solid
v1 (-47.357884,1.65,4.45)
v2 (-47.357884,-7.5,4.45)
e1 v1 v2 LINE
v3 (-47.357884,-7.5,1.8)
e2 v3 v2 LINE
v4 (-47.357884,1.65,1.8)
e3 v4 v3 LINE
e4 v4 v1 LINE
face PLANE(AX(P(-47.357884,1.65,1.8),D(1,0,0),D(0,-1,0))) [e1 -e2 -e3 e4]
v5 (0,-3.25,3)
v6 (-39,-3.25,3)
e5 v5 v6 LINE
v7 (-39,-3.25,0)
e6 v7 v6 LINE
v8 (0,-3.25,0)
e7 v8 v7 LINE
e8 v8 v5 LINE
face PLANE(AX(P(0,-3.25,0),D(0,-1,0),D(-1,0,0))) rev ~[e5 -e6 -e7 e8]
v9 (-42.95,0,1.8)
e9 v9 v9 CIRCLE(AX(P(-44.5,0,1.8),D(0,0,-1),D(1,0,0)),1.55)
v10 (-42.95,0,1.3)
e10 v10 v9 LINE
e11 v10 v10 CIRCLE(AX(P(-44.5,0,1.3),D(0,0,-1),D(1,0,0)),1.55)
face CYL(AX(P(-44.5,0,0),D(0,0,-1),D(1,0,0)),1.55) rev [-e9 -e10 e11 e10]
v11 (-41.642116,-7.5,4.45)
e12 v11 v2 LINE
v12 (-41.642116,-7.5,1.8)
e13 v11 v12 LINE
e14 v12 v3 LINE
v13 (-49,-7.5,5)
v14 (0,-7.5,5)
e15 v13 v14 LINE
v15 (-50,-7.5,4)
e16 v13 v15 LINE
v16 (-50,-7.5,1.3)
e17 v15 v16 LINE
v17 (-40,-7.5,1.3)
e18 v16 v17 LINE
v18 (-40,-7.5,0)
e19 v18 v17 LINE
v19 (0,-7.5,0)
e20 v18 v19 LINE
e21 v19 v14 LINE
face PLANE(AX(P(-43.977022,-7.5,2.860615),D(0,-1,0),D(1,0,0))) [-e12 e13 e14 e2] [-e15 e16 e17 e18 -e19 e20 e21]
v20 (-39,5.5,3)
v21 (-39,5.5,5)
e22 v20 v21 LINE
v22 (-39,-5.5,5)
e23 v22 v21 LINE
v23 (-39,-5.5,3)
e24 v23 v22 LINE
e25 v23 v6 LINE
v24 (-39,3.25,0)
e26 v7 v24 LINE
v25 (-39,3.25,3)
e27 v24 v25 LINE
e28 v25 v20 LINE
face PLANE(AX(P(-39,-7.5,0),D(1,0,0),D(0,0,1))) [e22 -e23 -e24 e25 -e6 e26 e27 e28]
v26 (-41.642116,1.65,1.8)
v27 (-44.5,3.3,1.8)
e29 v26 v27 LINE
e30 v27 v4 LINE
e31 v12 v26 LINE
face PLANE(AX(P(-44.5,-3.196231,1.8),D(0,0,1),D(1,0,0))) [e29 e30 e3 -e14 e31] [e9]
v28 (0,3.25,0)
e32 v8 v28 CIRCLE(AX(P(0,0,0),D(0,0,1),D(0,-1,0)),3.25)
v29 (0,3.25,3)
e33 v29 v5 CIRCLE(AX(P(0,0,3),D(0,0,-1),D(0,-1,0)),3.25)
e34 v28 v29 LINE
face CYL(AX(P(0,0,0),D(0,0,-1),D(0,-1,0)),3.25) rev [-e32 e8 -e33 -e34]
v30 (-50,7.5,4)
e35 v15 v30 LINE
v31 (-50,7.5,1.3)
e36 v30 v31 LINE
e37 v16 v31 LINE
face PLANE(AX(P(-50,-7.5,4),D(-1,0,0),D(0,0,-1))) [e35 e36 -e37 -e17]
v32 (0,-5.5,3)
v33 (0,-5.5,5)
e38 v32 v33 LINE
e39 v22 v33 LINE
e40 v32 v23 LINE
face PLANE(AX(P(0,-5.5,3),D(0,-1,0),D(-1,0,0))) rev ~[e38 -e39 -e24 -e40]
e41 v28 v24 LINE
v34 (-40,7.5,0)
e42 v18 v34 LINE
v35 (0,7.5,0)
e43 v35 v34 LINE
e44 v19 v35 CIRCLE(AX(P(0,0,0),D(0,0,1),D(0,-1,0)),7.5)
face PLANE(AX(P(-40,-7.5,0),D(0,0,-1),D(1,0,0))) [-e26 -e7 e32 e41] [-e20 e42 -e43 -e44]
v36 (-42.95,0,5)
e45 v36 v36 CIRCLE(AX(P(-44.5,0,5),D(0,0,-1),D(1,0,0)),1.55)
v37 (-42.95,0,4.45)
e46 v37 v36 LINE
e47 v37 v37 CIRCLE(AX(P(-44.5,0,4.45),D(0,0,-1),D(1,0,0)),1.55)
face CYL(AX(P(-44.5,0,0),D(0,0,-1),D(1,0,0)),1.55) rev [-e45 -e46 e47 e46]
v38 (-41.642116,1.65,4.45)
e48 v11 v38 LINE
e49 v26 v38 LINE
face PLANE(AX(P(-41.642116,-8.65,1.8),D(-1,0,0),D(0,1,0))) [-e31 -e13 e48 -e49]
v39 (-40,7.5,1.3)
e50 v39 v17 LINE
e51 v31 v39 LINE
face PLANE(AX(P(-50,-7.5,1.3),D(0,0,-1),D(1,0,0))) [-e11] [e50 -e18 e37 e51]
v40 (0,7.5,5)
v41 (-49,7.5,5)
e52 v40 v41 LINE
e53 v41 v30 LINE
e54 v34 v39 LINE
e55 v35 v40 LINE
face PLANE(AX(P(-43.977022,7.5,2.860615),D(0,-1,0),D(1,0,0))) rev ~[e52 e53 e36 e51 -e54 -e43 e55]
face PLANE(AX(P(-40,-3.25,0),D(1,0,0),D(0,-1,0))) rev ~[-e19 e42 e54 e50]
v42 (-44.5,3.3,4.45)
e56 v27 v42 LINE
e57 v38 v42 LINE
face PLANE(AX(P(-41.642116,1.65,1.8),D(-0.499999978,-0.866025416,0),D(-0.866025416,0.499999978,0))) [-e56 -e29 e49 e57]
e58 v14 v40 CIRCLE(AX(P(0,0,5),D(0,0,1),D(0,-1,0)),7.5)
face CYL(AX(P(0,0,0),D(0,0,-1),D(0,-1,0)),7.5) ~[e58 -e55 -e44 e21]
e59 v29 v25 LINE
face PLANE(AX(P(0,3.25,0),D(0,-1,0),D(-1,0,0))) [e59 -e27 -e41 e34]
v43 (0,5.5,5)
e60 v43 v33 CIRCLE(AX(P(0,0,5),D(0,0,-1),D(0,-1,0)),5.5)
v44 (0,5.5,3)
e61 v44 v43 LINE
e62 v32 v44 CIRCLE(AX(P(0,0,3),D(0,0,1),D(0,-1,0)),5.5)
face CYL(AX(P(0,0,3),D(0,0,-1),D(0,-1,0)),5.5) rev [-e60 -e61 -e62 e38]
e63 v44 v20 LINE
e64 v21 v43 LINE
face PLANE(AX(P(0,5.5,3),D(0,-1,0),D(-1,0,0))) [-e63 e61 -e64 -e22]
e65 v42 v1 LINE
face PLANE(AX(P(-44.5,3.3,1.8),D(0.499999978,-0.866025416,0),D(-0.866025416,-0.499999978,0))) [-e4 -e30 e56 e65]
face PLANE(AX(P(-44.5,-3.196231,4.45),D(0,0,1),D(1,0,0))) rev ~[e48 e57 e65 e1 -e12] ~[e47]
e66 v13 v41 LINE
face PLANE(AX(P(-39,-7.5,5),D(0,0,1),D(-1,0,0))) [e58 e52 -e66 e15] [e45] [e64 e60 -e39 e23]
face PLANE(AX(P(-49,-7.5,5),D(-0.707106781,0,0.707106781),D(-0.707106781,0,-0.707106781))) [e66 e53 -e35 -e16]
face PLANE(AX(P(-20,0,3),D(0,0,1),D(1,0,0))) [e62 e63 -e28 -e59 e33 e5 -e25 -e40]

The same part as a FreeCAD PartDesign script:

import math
import FreeCAD as App
import Part
import Sketcher
from FreeCAD import Vector
Q = App.Units.Quantity


def add_polygon(sketch, points):
    """Adds a closed chain of lines whose ends are joined by coincident constraints."""
    first, n = sketch.GeometryCount, len(points)
    for a, b in zip(points, points[1:] + points[:1]):
        sketch.addGeometry(Part.LineSegment(App.Vector(*a, 0), App.Vector(*b, 0)), False)
    for i in range(n):
        sketch.addConstraint(Sketcher.Constraint("Coincident", first + i, 2, first + (i + 1) % n, 1))

doc = App.newDocument("Part")
body = doc.addObject("PartDesign::Body", "Body")

sketch1 = body.newObject("Sketcher::SketchObject", "Sketch")
sketch1.AttachmentSupport = (doc.getObject("XY_Plane"), [""])
sketch1.MapMode = "FlatFace"
sketch1.addGeometry([
    Part.ArcOfCircle(Part.Circle(Vector(0, 0, 0), Vector(0, 0, 1), 7.5), math.radians(-90), math.radians(90)),
    Part.LineSegment(Vector(0, 7.5, 0), Vector(-40, 7.5, 0)),
    Part.LineSegment(Vector(-40, 7.5, 0), Vector(-40, 3.2, 0)),
    Part.LineSegment(Vector(-40, 3.2, 0), Vector(0, 3.2, 0)),
    Part.ArcOfCircle(Part.Circle(Vector(0, 0, 0), Vector(0, 0, 1), 3.2), math.radians(-90), math.radians(90)),
    Part.LineSegment(Vector(0, -3.2, 0), Vector(-40, -3.2, 0)),
    Part.LineSegment(Vector(-40, -3.2, 0), Vector(-40, -7.5, 0)),
    Part.LineSegment(Vector(-40, -7.5, 0), Vector(0, -7.5, 0)),
], False)
sketch1.addConstraint([
    Sketcher.Constraint("Tangent", 0, 2, 1, 1),
    Sketcher.Constraint("Coincident", 1, 2, 2, 1),
    Sketcher.Constraint("Coincident", 2, 2, 3, 1),
    Sketcher.Constraint("Tangent", 3, 2, 4, 2),
    Sketcher.Constraint("Tangent", 4, 1, 5, 1),
    Sketcher.Constraint("Coincident", 5, 2, 6, 1),
    Sketcher.Constraint("Coincident", 6, 2, 7, 1),
    Sketcher.Constraint("Tangent", 7, 2, 0, 1),
    Sketcher.Constraint("Horizontal", 1),
    Sketcher.Constraint("Vertical", 2),
    Sketcher.Constraint("Horizontal", 3),
    Sketcher.Constraint("Horizontal", 5),
    Sketcher.Constraint("Vertical", 6),
    Sketcher.Constraint("Horizontal", 7),
    Sketcher.Constraint("Coincident", 0, 3, -1, 1),
    Sketcher.Constraint("Coincident", 4, 3, -1, 1),
    Sketcher.Constraint("Vertical", 2, 2, 5, 2),
    Sketcher.Constraint("Radius", 0, 7.5),
    Sketcher.Constraint("DistanceX", 1, 2, 1, 1, 40.0),
    Sketcher.Constraint("Radius", 4, 3.25),
])
pad1 = body.newObject("PartDesign::Pad", "Pad")
pad1.Profile = sketch1
pad1.Length = 5

sketch2 = body.newObject("Sketcher::SketchObject", "Sketch001")
sketch2.AttachmentSupport = (doc.getObject("XY_Plane"), [""])
sketch2.MapMode = "FlatFace"
sketch2.AttachmentOffset = App.Placement(Vector(0, 0, 3), App.Rotation())
sketch2.addGeometry([
    Part.ArcOfCircle(Part.Circle(Vector(0, 0, 0), Vector(0, 0, 1), 6), math.radians(-90), math.radians(90)),
    Part.LineSegment(Vector(0, 6, 0), Vector(-40, 6, 0)),
    Part.ArcOfCircle(Part.Circle(Vector(-40, 0, 0), Vector(0, 0, 1), 6), math.radians(90), math.radians(270)),
    Part.LineSegment(Vector(-40, -6, 0), Vector(0, -6, 0)),
], False)
sketch2.addConstraint([
    Sketcher.Constraint("Tangent", 0, 2, 1, 1),
    Sketcher.Constraint("Tangent", 1, 2, 2, 1),
    Sketcher.Constraint("Tangent", 2, 2, 3, 1),
    Sketcher.Constraint("Tangent", 3, 2, 0, 1),
    Sketcher.Constraint("Horizontal", 1),
    Sketcher.Constraint("Horizontal", 3),
    Sketcher.Constraint("Coincident", 0, 3, -1, 1),
    Sketcher.Constraint("Radius", 0, 5.5),
    Sketcher.Constraint("DistanceX", 1, 2, 1, 1, 40.0),
])
pocket1 = body.newObject("PartDesign::Pocket", "Pocket")
pocket1.Profile = sketch2
pocket1.Type = "ThroughAll"
pocket1.Reversed = True

sketch3 = body.newObject("Sketcher::SketchObject", "Sketch002")
sketch3.AttachmentSupport = (doc.getObject("XZ_Plane"), [""])
sketch3.MapMode = "FlatFace"
sketch3.AttachmentOffset = App.Placement(Vector(0, 0, 7.5), App.Rotation())
add_polygon(sketch3, [(-49, 5), (-50, 4), (-50, 1.3), (-40, 1.3), (-40, 0), (-39, 0), (-39, 5)])
sketch3.addConstraint([
    Sketcher.Constraint("Vertical", 1),
    Sketcher.Constraint("Horizontal", 2),
    Sketcher.Constraint("Vertical", 3),
    Sketcher.Constraint("Horizontal", 4),
    Sketcher.Constraint("Vertical", 5),
    Sketcher.Constraint("Horizontal", 6),
    Sketcher.Constraint("PointOnObject", 3, 2, -1),
    Sketcher.Constraint("Equal", 2, 6),
    Sketcher.Constraint("DistanceX", 2, 1, 2, 2, 10.0),
    Sketcher.Constraint("DistanceX", 4, 1, 4, 2, 1.0),
    Sketcher.Constraint("DistanceY", 5, 1, 5, 2, 5.0),
    Sketcher.Constraint("Angle", 0, Q("-135 deg")),
    Sketcher.Constraint("DistanceY", 1, 2, 1, 1, 2.7),
    Sketcher.Constraint("DistanceX", 0, 2, -1, 1, 50.0),
])
pad2 = body.newObject("PartDesign::Pad", "Pad001")
pad2.Profile = sketch3
pad2.Length = 15
pad2.Reversed = True

sketch4 = body.newObject("Sketcher::SketchObject", "Sketch003")
sketch4.AttachmentSupport = (doc.getObject("XY_Plane"), [""])
sketch4.MapMode = "FlatFace"
sketch4.addGeometry(Part.Circle(Vector(-44.5, 0, 0), Vector(0, 0, 1), 1.6), False)
sketch4.addConstraint([
    Sketcher.Constraint("PointOnObject", 0, 3, -1),
    Sketcher.Constraint("Diameter", 0, 3.1),
    Sketcher.Constraint("DistanceX", 0, 3, -1, 1, 44.5),
])
pocket2 = body.newObject("PartDesign::Pocket", "Pocket001")
pocket2.Profile = sketch4
pocket2.Type = "ThroughAll"
pocket2.Reversed = True

sketch5 = body.newObject("Sketcher::SketchObject", "Sketch004")
sketch5.AttachmentSupport = (doc.getObject("XY_Plane"), [""])
sketch5.MapMode = "FlatFace"
sketch5.AttachmentOffset = App.Placement(Vector(0, 0, 1.8), App.Rotation())
add_polygon(sketch5, [(-44.5, 3.3), (-47.4, 1.6), (-47.4, -8.7), (-41.6, -8.7), (-41.6, 1.6)])
sketch5.addConstraint([
    Sketcher.Constraint("Vertical", 1),
    Sketcher.Constraint("Horizontal", 2),
    Sketcher.Constraint("Vertical", 3),
    Sketcher.Constraint("Horizontal", 0, 2, 3, 2),
    Sketcher.Constraint("Equal", 0, 4),
    Sketcher.Constraint("Angle", 0, Q("-150.000001 deg")),
    Sketcher.Constraint("DistanceY", 1, 2, 1, 1, 10.3),
    Sketcher.Constraint("Distance", 0, 3.3),
    Sketcher.Constraint("DistanceX", 4, 2, -1, 1, 44.5),
    Sketcher.Constraint("DistanceY", -1, 1, 4, 2, 3.3),
])
pocket3 = body.newObject("PartDesign::Pocket", "Pocket002")
pocket3.Profile = sketch5
pocket3.Length = 2.65
pocket3.Reversed = True

doc.recompute()
